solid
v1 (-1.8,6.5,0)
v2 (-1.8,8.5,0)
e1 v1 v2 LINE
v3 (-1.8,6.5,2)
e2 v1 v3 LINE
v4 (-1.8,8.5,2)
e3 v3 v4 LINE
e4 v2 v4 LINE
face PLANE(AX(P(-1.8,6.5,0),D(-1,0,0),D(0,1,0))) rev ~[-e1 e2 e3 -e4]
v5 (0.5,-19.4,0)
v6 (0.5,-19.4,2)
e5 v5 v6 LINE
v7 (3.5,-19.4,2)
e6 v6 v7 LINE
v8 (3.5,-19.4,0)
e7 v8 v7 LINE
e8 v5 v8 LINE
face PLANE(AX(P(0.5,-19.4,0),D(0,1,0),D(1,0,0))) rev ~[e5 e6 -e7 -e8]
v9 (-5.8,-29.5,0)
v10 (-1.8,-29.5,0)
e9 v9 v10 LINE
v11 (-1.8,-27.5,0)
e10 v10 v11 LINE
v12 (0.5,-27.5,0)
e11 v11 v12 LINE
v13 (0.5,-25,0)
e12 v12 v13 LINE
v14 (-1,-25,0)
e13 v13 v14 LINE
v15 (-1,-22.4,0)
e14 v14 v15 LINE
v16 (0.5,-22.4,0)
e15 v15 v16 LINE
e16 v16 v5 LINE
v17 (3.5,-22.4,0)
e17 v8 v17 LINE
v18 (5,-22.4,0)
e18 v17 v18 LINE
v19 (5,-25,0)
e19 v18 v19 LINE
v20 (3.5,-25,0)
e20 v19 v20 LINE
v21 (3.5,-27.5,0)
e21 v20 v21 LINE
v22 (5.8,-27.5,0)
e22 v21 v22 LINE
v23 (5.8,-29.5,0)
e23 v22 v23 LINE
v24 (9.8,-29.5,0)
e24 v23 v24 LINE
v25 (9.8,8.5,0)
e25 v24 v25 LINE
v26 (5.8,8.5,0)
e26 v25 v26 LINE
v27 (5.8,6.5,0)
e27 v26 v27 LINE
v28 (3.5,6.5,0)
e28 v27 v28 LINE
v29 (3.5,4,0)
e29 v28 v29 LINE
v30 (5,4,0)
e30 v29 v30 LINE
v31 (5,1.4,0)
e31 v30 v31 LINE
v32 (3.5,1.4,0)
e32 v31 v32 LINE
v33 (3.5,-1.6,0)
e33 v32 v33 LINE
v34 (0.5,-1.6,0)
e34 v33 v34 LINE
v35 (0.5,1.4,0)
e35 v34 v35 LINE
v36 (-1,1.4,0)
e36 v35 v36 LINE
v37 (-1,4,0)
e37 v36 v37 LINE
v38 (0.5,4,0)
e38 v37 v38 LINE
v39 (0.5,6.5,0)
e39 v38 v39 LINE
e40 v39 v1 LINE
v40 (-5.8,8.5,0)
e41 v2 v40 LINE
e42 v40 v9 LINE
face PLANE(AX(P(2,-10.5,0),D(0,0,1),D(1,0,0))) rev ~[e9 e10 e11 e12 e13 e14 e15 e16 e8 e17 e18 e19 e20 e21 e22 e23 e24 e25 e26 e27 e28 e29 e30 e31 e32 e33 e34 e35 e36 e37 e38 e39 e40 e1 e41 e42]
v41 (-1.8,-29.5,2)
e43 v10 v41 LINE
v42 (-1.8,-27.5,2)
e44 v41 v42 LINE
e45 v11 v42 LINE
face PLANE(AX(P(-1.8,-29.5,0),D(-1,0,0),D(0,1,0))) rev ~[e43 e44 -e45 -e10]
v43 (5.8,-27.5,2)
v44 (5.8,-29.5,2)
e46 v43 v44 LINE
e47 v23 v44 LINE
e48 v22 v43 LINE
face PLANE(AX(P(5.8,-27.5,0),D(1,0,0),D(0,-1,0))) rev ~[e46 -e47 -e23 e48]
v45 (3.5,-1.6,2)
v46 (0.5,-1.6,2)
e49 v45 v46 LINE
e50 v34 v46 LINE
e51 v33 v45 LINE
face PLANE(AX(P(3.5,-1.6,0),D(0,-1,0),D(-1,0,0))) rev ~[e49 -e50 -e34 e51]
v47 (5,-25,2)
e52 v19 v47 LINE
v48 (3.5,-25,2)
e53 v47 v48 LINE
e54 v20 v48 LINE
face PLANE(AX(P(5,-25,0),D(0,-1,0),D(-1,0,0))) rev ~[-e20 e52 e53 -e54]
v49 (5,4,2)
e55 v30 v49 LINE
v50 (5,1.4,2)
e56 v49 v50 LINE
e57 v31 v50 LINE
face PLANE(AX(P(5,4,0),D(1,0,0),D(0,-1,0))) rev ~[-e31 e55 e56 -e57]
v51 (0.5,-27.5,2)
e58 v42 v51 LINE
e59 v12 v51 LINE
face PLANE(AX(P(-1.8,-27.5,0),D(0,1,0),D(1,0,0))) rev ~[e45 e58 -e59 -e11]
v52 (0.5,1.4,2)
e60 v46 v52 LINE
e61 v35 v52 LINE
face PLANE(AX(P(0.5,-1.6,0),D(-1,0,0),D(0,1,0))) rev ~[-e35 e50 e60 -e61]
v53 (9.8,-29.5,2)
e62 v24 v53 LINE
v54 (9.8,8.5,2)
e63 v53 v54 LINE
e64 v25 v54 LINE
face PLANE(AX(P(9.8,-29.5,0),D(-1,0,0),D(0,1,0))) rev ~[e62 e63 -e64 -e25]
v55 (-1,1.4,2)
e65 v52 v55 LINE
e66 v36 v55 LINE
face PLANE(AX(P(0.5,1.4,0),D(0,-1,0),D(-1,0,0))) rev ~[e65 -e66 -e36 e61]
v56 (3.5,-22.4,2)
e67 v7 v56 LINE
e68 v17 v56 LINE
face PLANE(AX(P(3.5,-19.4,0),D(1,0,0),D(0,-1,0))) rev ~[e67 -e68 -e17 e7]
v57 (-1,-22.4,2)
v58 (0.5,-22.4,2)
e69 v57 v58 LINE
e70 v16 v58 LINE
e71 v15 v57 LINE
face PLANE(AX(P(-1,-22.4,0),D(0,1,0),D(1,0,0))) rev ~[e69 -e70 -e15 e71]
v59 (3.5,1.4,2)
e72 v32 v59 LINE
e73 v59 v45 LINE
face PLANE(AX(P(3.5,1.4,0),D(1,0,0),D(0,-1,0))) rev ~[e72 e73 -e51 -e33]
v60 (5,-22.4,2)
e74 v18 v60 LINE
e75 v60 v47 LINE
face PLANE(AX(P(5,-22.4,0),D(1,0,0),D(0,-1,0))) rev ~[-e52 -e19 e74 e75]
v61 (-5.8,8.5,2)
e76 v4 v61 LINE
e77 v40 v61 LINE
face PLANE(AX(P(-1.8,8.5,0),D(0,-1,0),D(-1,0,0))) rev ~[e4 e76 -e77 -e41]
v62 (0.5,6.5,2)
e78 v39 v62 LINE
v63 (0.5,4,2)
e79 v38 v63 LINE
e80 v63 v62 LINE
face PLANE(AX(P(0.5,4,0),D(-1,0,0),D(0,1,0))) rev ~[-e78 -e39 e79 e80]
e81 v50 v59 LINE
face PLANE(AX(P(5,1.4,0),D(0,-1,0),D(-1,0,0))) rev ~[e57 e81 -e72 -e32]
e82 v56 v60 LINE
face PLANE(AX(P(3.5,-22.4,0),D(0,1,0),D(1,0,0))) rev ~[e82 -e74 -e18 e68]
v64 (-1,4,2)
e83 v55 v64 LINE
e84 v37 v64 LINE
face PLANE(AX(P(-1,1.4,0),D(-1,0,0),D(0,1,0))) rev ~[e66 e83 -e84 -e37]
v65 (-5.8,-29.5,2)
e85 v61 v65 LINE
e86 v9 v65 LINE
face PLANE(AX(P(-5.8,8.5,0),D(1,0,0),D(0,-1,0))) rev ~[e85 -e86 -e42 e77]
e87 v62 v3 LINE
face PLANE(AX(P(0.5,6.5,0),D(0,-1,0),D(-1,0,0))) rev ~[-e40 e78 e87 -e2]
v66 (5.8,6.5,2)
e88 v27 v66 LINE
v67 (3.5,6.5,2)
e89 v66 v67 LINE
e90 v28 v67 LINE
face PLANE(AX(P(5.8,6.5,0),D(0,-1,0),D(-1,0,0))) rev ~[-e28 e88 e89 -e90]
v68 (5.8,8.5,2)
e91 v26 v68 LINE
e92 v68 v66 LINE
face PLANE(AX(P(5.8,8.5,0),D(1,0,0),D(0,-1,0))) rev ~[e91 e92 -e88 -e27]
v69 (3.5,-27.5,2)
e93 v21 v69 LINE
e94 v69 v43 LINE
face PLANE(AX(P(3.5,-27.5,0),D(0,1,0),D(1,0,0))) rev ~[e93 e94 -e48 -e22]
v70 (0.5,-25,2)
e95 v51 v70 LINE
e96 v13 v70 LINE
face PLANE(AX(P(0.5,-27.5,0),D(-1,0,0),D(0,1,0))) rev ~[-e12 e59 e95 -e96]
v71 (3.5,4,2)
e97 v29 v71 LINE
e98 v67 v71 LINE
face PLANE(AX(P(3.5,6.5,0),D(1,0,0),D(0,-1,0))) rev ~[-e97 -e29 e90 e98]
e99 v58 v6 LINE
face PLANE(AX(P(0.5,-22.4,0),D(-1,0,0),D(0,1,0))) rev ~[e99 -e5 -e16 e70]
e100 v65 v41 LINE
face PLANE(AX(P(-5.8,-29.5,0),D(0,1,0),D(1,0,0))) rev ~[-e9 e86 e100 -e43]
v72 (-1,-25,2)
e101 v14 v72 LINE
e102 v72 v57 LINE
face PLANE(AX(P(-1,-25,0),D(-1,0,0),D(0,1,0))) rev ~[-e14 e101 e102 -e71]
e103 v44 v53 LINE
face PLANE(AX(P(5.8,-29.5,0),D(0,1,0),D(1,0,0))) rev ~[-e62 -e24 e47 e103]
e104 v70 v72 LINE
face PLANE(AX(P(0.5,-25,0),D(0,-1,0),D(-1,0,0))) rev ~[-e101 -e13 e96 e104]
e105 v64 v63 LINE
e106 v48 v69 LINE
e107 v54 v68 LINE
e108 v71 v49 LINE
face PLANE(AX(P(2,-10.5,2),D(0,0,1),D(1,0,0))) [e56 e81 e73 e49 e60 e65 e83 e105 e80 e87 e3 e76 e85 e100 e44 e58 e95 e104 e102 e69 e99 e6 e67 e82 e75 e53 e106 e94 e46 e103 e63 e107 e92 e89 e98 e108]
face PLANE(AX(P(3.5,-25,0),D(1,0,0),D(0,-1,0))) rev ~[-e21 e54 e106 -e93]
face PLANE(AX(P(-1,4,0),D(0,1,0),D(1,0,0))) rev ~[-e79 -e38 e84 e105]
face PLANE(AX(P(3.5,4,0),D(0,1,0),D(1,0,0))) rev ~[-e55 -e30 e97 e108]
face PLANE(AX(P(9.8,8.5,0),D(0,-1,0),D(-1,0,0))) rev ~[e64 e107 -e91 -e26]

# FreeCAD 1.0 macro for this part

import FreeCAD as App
import Part
import Sketcher

V = App.Vector
Q = App.Units.Quantity


def add_polygon(sketch, points):
    """Adds a closed chain of lines whose ends are joined by coincident constraints."""
    first, n = sketch.GeometryCount, len(points)
    for a, b in zip(points, points[1:] + points[:1]):
        sketch.addGeometry(Part.LineSegment(App.Vector(*a, 0), App.Vector(*b, 0)), False)
    for i in range(n):
        sketch.addConstraint(Sketcher.Constraint("Coincident", first + i, 2, first + (i + 1) % n, 1))

doc = App.newDocument("Part")
body = doc.addObject("PartDesign::Body", "Body")

sketch1 = body.newObject("Sketcher::SketchObject", "Sketch")
sketch1.AttachmentSupport = (doc.getObject("XY_Plane"), [""])
sketch1.MapMode = "FlatFace"
add_polygon(sketch1, [(5.8, -27.5), (5.8, -29.5), (9.8, -29.5), (9.8, 8.5), (5.8, 8.5), (5.8, 6.5), (3.5, 6.5), (3.5, 4), (5, 4), (5, 1.4), (3.5, 1.4), (3.5, -1.6), (0.5, -1.6), (0.5, 1.4), (-1, 1.4), (-1, 4), (0.5, 4), (0.5, 6.5), (-1.8, 6.5), (-1.8, 8.5), (-5.8, 8.5), (-5.8, -29.5), (-1.8, -29.5), (-1.8, -27.5), (0.5, -27.5), (0.5, -25), (-1, -25), (-1, -22.4), (0.5, -22.4), (0.5, -19.4), (3.5, -19.4), (3.5, -22.4), (5, -22.4), (5, -25), (3.5, -25), (3.5, -27.5)])
sketch1.addConstraint(Sketcher.Constraint("Vertical", 0))
sketch1.addConstraint(Sketcher.Constraint("Horizontal", 1))
sketch1.addConstraint(Sketcher.Constraint("Vertical", 2))
sketch1.addConstraint(Sketcher.Constraint("Horizontal", 3))
sketch1.addConstraint(Sketcher.Constraint("Vertical", 4))
sketch1.addConstraint(Sketcher.Constraint("Horizontal", 5))
sketch1.addConstraint(Sketcher.Constraint("Vertical", 6))
sketch1.addConstraint(Sketcher.Constraint("Horizontal", 7))
sketch1.addConstraint(Sketcher.Constraint("Vertical", 8))
sketch1.addConstraint(Sketcher.Constraint("Horizontal", 9))
sketch1.addConstraint(Sketcher.Constraint("Vertical", 10))
sketch1.addConstraint(Sketcher.Constraint("Horizontal", 11))
sketch1.addConstraint(Sketcher.Constraint("Vertical", 12))
sketch1.addConstraint(Sketcher.Constraint("Horizontal", 13))
sketch1.addConstraint(Sketcher.Constraint("Vertical", 14))
sketch1.addConstraint(Sketcher.Constraint("Horizontal", 15))
sketch1.addConstraint(Sketcher.Constraint("Vertical", 16))
sketch1.addConstraint(Sketcher.Constraint("Horizontal", 17))
sketch1.addConstraint(Sketcher.Constraint("Vertical", 18))
sketch1.addConstraint(Sketcher.Constraint("Horizontal", 19))
sketch1.addConstraint(Sketcher.Constraint("Vertical", 20))
sketch1.addConstraint(Sketcher.Constraint("Horizontal", 21))
sketch1.addConstraint(Sketcher.Constraint("Vertical", 22))
sketch1.addConstraint(Sketcher.Constraint("Horizontal", 23))
sketch1.addConstraint(Sketcher.Constraint("Vertical", 24))
sketch1.addConstraint(Sketcher.Constraint("Horizontal", 25))
sketch1.addConstraint(Sketcher.Constraint("Vertical", 26))
sketch1.addConstraint(Sketcher.Constraint("Horizontal", 27))
sketch1.addConstraint(Sketcher.Constraint("Vertical", 28))
sketch1.addConstraint(Sketcher.Constraint("Horizontal", 29))
sketch1.addConstraint(Sketcher.Constraint("Vertical", 30))
sketch1.addConstraint(Sketcher.Constraint("Horizontal", 31))
sketch1.addConstraint(Sketcher.Constraint("Vertical", 32))
sketch1.addConstraint(Sketcher.Constraint("Horizontal", 33))
sketch1.addConstraint(Sketcher.Constraint("Vertical", 34))
sketch1.addConstraint(Sketcher.Constraint("Horizontal", 35))
sketch1.addConstraint(Sketcher.Constraint("Symmetric", 3, 2, 19, 2, -2))
sketch1.addConstraint(Sketcher.Constraint("Symmetric", 0, 2, 20, 2, -2))
sketch1.addConstraint(Sketcher.Constraint("Horizontal", 9, 2, 12, 2))
sketch1.addConstraint(Sketcher.Constraint("Horizontal", 7, 2, 14, 2))
sketch1.addConstraint(Sketcher.Constraint("Horizontal", 5, 2, 16, 2))
sketch1.addConstraint(Sketcher.Constraint("Horizontal", 27, 2, 30, 2))
sketch1.addConstraint(Sketcher.Constraint("Horizontal", 25, 2, 32, 2))
sketch1.addConstraint(Sketcher.Constraint("Horizontal", 23, 2, 34, 2))
sketch1.addConstraint(Sketcher.Constraint("Vertical", 6, 2, 9, 2))
sketch1.addConstraint(Sketcher.Constraint("Vertical", 12, 2, 15, 2))
sketch1.addConstraint(Sketcher.Constraint("Vertical", 18, 2, 21, 2))
sketch1.addConstraint(Sketcher.Constraint("Vertical", 16, 2, 23, 2))
sketch1.addConstraint(Sketcher.Constraint("Vertical", 14, 2, 25, 2))
sketch1.addConstraint(Sketcher.Constraint("Vertical", 24, 2, 27, 2))
sketch1.addConstraint(Sketcher.Constraint("Vertical", 10, 2, 29, 2))
sketch1.addConstraint(Sketcher.Constraint("Vertical", 8, 2, 31, 2))
sketch1.addConstraint(Sketcher.Constraint("Vertical", 30, 2, 33, 2))
sketch1.addConstraint(Sketcher.Constraint("Equal", 9, 13))
sketch1.addConstraint(Sketcher.Constraint("Equal", 5, 17))
sketch1.addConstraint(Sketcher.Constraint("Equal", 3, 19))
sketch1.addConstraint(Sketcher.Constraint("Equal", 0, 4))
sketch1.addConstraint(Sketcher.Constraint("Equal", 29, 10))
sketch1.addConstraint(Sketcher.Constraint("Equal", 16, 24))
sketch1.addConstraint(Sketcher.Constraint("Equal", 14, 26))
sketch1.addConstraint(Sketcher.Constraint("Equal", 12, 28))
sketch1.addConstraint(Sketcher.Constraint("DistanceX", 1, 1, 1, 2, Q("4 mm")))
sketch1.addConstraint(Sketcher.Constraint("DistanceX", 11, 2, 11, 1, Q("3 mm")))
sketch1.addConstraint(Sketcher.Constraint("DistanceY", 0, 2, 0, 1, Q("2 mm")))
sketch1.addConstraint(Sketcher.Constraint("DistanceY", 2, 1, 2, 2, Q("38 mm")))
sketch1.addConstraint(Sketcher.Constraint("DistanceX", 5, 2, 5, 1, Q("2.3 mm")))
sketch1.addConstraint(Sketcher.Constraint("DistanceX", 7, 1, 7, 2, Q("1.5 mm")))
sketch1.addConstraint(Sketcher.Constraint("DistanceY", 6, 2, 6, 1, Q("2.5 mm")))
sketch1.addConstraint(Sketcher.Constraint("DistanceY", 8, 2, 8, 1, Q("2.6 mm")))
sketch1.addConstraint(Sketcher.Constraint("DistanceY", -1, 1, 6, 2, Q("4 mm")))
pad1 = body.newObject("PartDesign::Pad", "Pad")
pad1.Profile = sketch1
pad1.Length = 2

doc.recompute()
